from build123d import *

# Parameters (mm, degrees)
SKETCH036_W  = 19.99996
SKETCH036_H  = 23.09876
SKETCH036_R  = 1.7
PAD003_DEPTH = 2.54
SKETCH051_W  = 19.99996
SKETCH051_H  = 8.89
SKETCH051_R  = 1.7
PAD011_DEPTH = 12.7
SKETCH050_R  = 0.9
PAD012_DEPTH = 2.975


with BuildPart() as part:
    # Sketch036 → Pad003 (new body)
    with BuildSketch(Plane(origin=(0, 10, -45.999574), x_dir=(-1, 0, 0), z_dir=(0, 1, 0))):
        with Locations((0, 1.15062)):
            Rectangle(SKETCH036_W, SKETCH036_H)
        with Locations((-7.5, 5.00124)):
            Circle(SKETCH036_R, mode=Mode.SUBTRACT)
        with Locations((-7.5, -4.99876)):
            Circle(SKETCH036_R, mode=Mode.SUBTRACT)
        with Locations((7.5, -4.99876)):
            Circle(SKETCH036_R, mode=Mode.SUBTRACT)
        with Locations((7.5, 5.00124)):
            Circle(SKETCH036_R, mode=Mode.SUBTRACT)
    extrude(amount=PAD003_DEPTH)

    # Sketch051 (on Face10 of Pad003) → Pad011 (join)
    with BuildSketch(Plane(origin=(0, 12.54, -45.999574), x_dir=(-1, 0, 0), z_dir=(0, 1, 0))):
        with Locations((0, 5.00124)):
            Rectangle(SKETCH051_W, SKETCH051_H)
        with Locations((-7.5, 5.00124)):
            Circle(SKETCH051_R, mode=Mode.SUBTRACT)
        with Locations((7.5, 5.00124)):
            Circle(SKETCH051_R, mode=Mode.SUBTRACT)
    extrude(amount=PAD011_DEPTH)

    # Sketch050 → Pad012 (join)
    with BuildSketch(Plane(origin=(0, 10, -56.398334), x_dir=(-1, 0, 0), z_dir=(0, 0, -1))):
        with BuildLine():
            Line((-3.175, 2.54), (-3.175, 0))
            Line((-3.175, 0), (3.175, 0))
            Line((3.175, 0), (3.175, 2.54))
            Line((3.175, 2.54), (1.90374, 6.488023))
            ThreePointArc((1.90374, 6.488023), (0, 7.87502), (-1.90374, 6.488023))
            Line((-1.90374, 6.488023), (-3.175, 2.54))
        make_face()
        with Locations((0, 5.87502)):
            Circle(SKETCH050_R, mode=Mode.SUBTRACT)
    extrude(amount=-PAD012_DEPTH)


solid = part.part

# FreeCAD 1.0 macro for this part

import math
import FreeCAD as App
import Part
import Sketcher

V = App.Vector
Q = App.Units.Quantity


def add_polygon(sketch, points):
    """Adds a closed chain of lines whose ends are joined by coincident constraints."""
    first, n = sketch.GeometryCount, len(points)
    for a, b in zip(points, points[1:] + points[:1]):
        sketch.addGeometry(Part.LineSegment(App.Vector(*a, 0), App.Vector(*b, 0)), False)
    for i in range(n):
        sketch.addConstraint(Sketcher.Constraint("Coincident", first + i, 2, first + (i + 1) % n, 1))

doc = App.newDocument("Part")
params = doc.addObject("Spreadsheet::Sheet", "Params")
for row, (alias, value) in enumerate([
    ("pad1_length", "0.1 in"),
    ("sketch2_height", "0.35 in"),
    ("pad2_length", "0.5 in"),
    ("sketch3_height", "0.1 in"),
    ("sketch3_width", "0.25 in"),
    ("pad3_length", "2.975 mm"),
], start=1):
    params.set(f"A{row}", alias)
    params.set(f"B{row}", "=" + value)
    params.setAlias(f"B{row}", alias)

body = doc.addObject("PartDesign::Body", "Body")

# Sketch on XZ plane
sketch1 = body.newObject("Sketcher::SketchObject", "Sketch")
sketch1.AttachmentSupport = (doc.getObject("XZ_Plane"), [""])
sketch1.MapMode = "FlatFace"
sketch1.AttachmentOffset = App.Placement(V(0, 0, -10), App.Rotation())
add_polygon(sketch1, [(9.99998, -33.299574), (9.99998, -56.398334), (-9.99998, -56.398334), (-9.99998, -33.299574)])  # lines 0-3
sketch1.addGeometry(Part.Circle(V(7.5, -50.998334, 0), V(0, 0, 1), 1.7), False)  # 4
sketch1.addGeometry(Part.Circle(V(-7.5, -50.998334, 0), V(0, 0, 1), 1.7), False)  # 5
sketch1.addGeometry(Part.Circle(V(7.5, -40.998334, 0), V(0, 0, 1), 1.7), False)  # 6
sketch1.addGeometry(Part.Circle(V(-7.5, -40.998334, 0), V(0, 0, 1), 1.7), False)  # 7
sketch1.addConstraint([
    Sketcher.Constraint("Vertical", 0),
    Sketcher.Constraint("Horizontal", 1),
    Sketcher.Constraint("Vertical", 2),
    Sketcher.Constraint("Horizontal", 3),
    Sketcher.Constraint("Equal", 4, 5),
    Sketcher.Constraint("Equal", 5, 6),
    Sketcher.Constraint("Equal", 6, 7),
    Sketcher.Constraint("Symmetric", 4, 3, 5, 3, -2),
    Sketcher.Constraint("Symmetric", 6, 3, 7, 3, -2),
    Sketcher.Constraint("Vertical", 4, 3, 6, 3),
    Sketcher.Constraint("Diameter", 4, Q("3.4 mm")),
    Sketcher.Constraint("DistanceX", 1, 2, 1, 1, Q("0.7874 in")),
    Sketcher.Constraint("DistanceY", 0, 2, 0, 1, Q("0.9094 in")),
    Sketcher.Constraint("DistanceX", -1, 1, 0, 2, Q("0.3937 in")),
    Sketcher.Constraint("DistanceX", -1, 1, 4, 3, Q("7.5 mm")),
    Sketcher.Constraint("DistanceY", 4, 3, 6, 3, Q("10 mm")),
    Sketcher.Constraint("DistanceY", 0, 2, 4, 3, Q("5.4 mm")),
    Sketcher.Constraint("DistanceY", 4, 3, -1, 1, Q("50.998334 mm")),
])
pad1 = body.newObject("PartDesign::Pad", "Pad")
pad1.Profile = sketch1
pad1.setExpression("Length", "Params.pad1_length")
pad1.Reversed = True

# Sketch on XZ plane
sketch2 = body.newObject("Sketcher::SketchObject", "Sketch001")
sketch2.AttachmentSupport = (doc.getObject("XZ_Plane"), [""])
sketch2.MapMode = "FlatFace"
sketch2.AttachmentOffset = App.Placement(V(0, 0, -12.54), App.Rotation())
add_polygon(sketch2, [(9.99998, -36.553334), (9.99998, -45.443334), (-9.99998, -45.443334), (-9.99998, -36.553334)])  # lines 0-3
sketch2.addGeometry(Part.Circle(V(7.5, -40.998334, 0), V(0, 0, 1), 1.7), False)  # 4
sketch2.addGeometry(Part.Circle(V(-7.5, -40.998334, 0), V(0, 0, 1), 1.7), False)  # 5
sketch2.addConstraint([
    Sketcher.Constraint("Vertical", 0),
    Sketcher.Constraint("Horizontal", 1),
    Sketcher.Constraint("Vertical", 2),
    Sketcher.Constraint("Horizontal", 3),
    Sketcher.Constraint("Equal", 4, 5),
    Sketcher.Constraint("Symmetric", 4, 3, 5, 3, -2),
    Sketcher.Constraint("DistanceY", 0, 2, 0, 1, Q("0.35 in")),
    Sketcher.Constraint("Diameter", 4, Q("3.4 mm")),
    Sketcher.Constraint("DistanceX", 1, 2, 1, 1, Q("0.7874 in")),
    Sketcher.Constraint("DistanceY", 0, 2, 4, 3, Q("0.175 in")),
    Sketcher.Constraint("DistanceX", -1, 1, 0, 2, Q("0.3937 in")),
    Sketcher.Constraint("DistanceX", -1, 1, 4, 3, Q("7.5 mm")),
    Sketcher.Constraint("DistanceY", 4, 3, -1, 1, Q("40.998334 mm")),
])
sketch2.setExpression("Constraints[10]", "Params.sketch2_height")
pad2 = body.newObject("PartDesign::Pad", "Pad001")
pad2.Profile = sketch2
pad2.setExpression("Length", "Params.pad2_length")
pad2.Reversed = True

# Sketch on XY plane
sketch3 = body.newObject("Sketcher::SketchObject", "Sketch002")
sketch3.AttachmentSupport = (doc.getObject("XY_Plane"), [""])
sketch3.MapMode = "FlatFace"
sketch3.AttachmentOffset = App.Placement(V(0, 0, -56.398334), App.Rotation())
sketch3.addGeometry([
    Part.LineSegment(V(3.175, 12.54, 0), V(3.175, 10, 0)),  # 0
    Part.LineSegment(V(3.175, 10, 0), V(-3.175, 10, 0)),  # 1
    Part.LineSegment(V(-3.175, 10, 0), V(-3.175, 12.54, 0)),  # 2
    Part.LineSegment(V(-3.175, 12.54, 0), V(-1.90374, 16.488023, 0)),  # 3
    Part.ArcOfCircle(Part.Circle(V(0, 15.87502, 0), V(0, 0, 1), 2), math.radians(17.848511), math.radians(162.151489)),  # 4
    Part.LineSegment(V(1.90374, 16.488023, 0), V(3.175, 12.54, 0)),  # 5
    Part.Circle(V(0, 15.87502, 0), V(0, 0, 1), 0.9),  # 6
], False)
sketch3.addConstraint([
    Sketcher.Constraint("Coincident", 0, 2, 1, 1),
    Sketcher.Constraint("Coincident", 1, 2, 2, 1),
    Sketcher.Constraint("Coincident", 2, 2, 3, 1),
    Sketcher.Constraint("Tangent", 3, 2, 4, 2),
    Sketcher.Constraint("Tangent", 4, 1, 5, 1),
    Sketcher.Constraint("Coincident", 5, 2, 0, 1),
    Sketcher.Constraint("Vertical", 0),
    Sketcher.Constraint("Horizontal", 1),
    Sketcher.Constraint("Vertical", 2),
    Sketcher.Constraint("Coincident", 6, 3, 4, 3),
    Sketcher.Constraint("Symmetric", 3, 2, 4, 1, -2),
    Sketcher.Constraint("Horizontal", 2, 2, 5, 2),
    Sketcher.Constraint("DistanceY", 0, 2, 0, 1, Q("0.1 in")),
    Sketcher.Constraint("DistanceX", 1, 2, 1, 1, Q("0.25 in")),
    Sketcher.Constraint("Diameter", 6, Q("1.8 mm")),
    Sketcher.Constraint("Radius", 4, Q("2 mm")),
    Sketcher.Constraint("DistanceY", 0, 2, 6, 3, Q("0.2313 in")),
    Sketcher.Constraint("DistanceY", -1, 1, 0, 2, Q("10 mm")),
])
sketch3.setExpression("Constraints[12]", "Params.sketch3_height")
sketch3.setExpression("Constraints[13]", "Params.sketch3_width")
pad3 = body.newObject("PartDesign::Pad", "Pad002")
pad3.Profile = sketch3
pad3.setExpression("Length", "Params.pad3_length")

doc.recompute()
